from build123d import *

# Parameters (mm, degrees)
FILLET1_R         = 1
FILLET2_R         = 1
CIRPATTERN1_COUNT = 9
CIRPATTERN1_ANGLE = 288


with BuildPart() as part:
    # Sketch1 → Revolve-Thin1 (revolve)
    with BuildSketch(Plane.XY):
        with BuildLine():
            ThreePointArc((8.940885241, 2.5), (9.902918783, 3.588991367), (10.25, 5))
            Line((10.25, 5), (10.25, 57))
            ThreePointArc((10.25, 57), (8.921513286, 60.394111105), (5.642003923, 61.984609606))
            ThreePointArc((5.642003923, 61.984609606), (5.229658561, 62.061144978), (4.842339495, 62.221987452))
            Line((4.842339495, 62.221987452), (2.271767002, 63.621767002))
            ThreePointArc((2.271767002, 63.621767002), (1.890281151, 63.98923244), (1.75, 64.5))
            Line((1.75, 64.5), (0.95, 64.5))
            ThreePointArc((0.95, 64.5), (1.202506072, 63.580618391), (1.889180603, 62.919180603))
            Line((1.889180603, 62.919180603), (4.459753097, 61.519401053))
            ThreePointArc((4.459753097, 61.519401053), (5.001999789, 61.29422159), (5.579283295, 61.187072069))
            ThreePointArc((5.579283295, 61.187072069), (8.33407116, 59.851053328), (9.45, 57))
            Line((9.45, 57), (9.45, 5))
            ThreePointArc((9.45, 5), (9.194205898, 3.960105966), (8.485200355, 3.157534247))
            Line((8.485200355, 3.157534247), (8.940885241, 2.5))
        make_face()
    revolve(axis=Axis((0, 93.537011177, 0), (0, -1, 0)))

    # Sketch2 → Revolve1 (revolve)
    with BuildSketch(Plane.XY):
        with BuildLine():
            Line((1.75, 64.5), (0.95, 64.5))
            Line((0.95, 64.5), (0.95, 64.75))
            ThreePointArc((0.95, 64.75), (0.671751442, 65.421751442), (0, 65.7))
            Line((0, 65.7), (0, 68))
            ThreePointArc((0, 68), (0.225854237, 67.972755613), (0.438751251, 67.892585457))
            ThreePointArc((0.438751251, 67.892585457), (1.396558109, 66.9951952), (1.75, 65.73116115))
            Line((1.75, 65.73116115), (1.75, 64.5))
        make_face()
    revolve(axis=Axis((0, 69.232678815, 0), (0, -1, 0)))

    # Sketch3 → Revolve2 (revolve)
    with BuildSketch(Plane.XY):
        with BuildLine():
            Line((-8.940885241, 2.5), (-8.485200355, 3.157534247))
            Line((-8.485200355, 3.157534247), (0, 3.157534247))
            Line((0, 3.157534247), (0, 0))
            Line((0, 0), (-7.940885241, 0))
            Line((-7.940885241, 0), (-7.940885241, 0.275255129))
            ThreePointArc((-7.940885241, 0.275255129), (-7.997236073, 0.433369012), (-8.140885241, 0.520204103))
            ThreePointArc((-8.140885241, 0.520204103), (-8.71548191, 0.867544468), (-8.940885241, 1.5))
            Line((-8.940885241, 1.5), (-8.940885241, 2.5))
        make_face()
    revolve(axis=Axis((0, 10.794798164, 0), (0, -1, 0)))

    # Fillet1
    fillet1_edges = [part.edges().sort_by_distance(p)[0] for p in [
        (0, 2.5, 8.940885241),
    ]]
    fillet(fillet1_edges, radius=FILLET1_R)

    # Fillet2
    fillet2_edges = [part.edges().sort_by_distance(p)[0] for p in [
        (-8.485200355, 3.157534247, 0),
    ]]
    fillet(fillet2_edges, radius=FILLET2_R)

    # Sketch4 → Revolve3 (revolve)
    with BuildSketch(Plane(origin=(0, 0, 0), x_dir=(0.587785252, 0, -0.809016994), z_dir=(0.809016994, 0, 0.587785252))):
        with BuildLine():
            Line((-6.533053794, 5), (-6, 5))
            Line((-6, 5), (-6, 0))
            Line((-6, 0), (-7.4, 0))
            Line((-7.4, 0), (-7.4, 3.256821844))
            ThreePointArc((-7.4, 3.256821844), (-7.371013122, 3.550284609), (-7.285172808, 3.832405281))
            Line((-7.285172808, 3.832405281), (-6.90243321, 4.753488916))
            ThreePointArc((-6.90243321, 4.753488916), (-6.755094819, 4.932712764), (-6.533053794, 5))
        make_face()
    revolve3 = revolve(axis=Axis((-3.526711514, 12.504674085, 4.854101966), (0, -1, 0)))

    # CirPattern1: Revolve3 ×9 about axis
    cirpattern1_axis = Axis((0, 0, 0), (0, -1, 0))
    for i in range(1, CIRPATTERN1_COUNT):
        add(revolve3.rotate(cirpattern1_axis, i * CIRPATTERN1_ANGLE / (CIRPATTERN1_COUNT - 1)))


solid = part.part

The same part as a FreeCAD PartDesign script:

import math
import FreeCAD as App
import Part
import Sketcher
from FreeCAD import Vector
Q = App.Units.Quantity


def edges_at(feature, points):
    """Names of the edges that pass closest to the given points."""
    edges = feature.Shape.Edges
    near = lambda p: min(range(len(edges)), key=lambda i: edges[i].distToShape(Part.Vertex(*p))[0])
    return sorted({f"Edge{near(p) + 1}" for p in points})

doc = App.newDocument("Part")
body = doc.addObject("PartDesign::Body", "Body")

# Sketch on XY plane
sketch1 = body.newObject("Sketcher::SketchObject", "Sketch")
sketch1.AttachmentSupport = (doc.getObject("XY_Plane"), [""])
sketch1.MapMode = "FlatFace"
sketch1.addGeometry([
    Part.ArcOfCircle(Part.Circle(Vector(7.208333, 5, 0), Vector(0, 0, 1), 3.041667), math.radians(-55.277237), math.radians(0)),  # 0
    Part.LineSegment(Vector(10.25, 5, 0), Vector(10.25, 57, 0)),  # 1
    Part.ArcOfCircle(Part.Circle(Vector(5.25, 57, 0), Vector(0, 0, 1), 5), math.radians(0), math.radians(85.503351)),  # 2
    Part.ArcOfCircle(Part.Circle(Vector(5.798805, 63.978453, 0), Vector(0, 0, 1), 2), math.radians(-118.57006), math.radians(-94.496649)),  # 3
    Part.LineSegment(Vector(4.842339, 62.221987, 0), Vector(2.271767, 63.621767, 0)),  # 4
    Part.ArcOfCircle(Part.Circle(Vector(2.75, 64.5, 0), Vector(0, 0, 1), 1), math.radians(180), math.radians(241.42994)),  # 5
    Part.LineSegment(Vector(1.75, 64.5, 0), Vector(0.95, 64.5, 0)),  # 6
    Part.ArcOfCircle(Part.Circle(Vector(2.75, 64.5, 0), Vector(0, 0, 1), 1.8), math.radians(180), math.radians(241.42994)),  # 7
    Part.LineSegment(Vector(1.889181, 62.919181, 0), Vector(4.459753, 61.519401, 0)),  # 8
    Part.ArcOfCircle(Part.Circle(Vector(5.798805, 63.978453, 0), Vector(0, 0, 1), 2.8), math.radians(-118.57006), math.radians(-94.496649)),  # 9
    Part.ArcOfCircle(Part.Circle(Vector(5.25, 57, 0), Vector(0, 0, 1), 4.2), math.radians(0), math.radians(85.503351)),  # 10
    Part.LineSegment(Vector(9.45, 57, 0), Vector(9.45, 5, 0)),  # 11
    Part.ArcOfCircle(Part.Circle(Vector(7.208333, 5, 0), Vector(0, 0, 1), 2.241667), math.radians(-55.277237), math.radians(0)),  # 12
    Part.LineSegment(Vector(8.4852, 3.157534, 0), Vector(8.940885, 2.5, 0)),  # 13
], False)
sketch1.addConstraint([
    Sketcher.Constraint("Tangent", 0, 2, 1, 1),
    Sketcher.Constraint("Tangent", 1, 2, 2, 1),
    Sketcher.Constraint("Tangent", 2, 2, 3, 2),
    Sketcher.Constraint("Tangent", 3, 1, 4, 1),
    Sketcher.Constraint("Tangent", 4, 2, 5, 2),
    Sketcher.Constraint("Coincident", 5, 1, 6, 1),
    Sketcher.Constraint("Coincident", 6, 2, 7, 1),
    Sketcher.Constraint("Tangent", 7, 2, 8, 1),
    Sketcher.Constraint("Tangent", 8, 2, 9, 1),
    Sketcher.Constraint("Tangent", 9, 2, 10, 2),
    Sketcher.Constraint("Tangent", 10, 1, 11, 1),
    Sketcher.Constraint("Tangent", 11, 2, 12, 2),
    Sketcher.Constraint("Coincident", 12, 1, 13, 1),
    Sketcher.Constraint("Coincident", 13, 2, 0, 1),
    Sketcher.Constraint("Vertical", 1),
    Sketcher.Constraint("Horizontal", 6),
    Sketcher.Constraint("Vertical", 11),
    Sketcher.Constraint("Coincident", 7, 3, 5, 3),
    Sketcher.Constraint("Coincident", 9, 3, 3, 3),
    Sketcher.Constraint("Coincident", 10, 3, 2, 3),
    Sketcher.Constraint("Coincident", 12, 3, 0, 3),
    Sketcher.Constraint("Parallel", 4, 8),
    Sketcher.Constraint("Horizontal", 7, 3, 5, 1),
    Sketcher.Constraint("Radius", 2, Q("5 mm")),
    Sketcher.Constraint("Radius", 3, Q("2 mm")),
    Sketcher.Constraint("Radius", 5, Q("1 mm")),
    Sketcher.Constraint("Radius", 7, Q("1.8 mm")),
    Sketcher.Constraint("DistanceY", 1, 1, 1, 2, Q("52 mm")),
    Sketcher.Constraint("DistanceY", -1, 1, 0, 3, Q("5 mm")),
    Sketcher.Constraint("DistanceY", -1, 1, 5, 3, Q("64.5 mm")),
    Sketcher.Constraint("DistanceY", -1, 1, 13, 2, Q("2.5 mm")),
    Sketcher.Constraint("DistanceX", 5, 3, 2, 3, Q("2.5 mm")),
    Sketcher.Constraint("DistanceX", -1, 1, 2, 3, Q("5.25 mm")),
    Sketcher.Constraint("Radius", 0, Q("3.041667 mm")),
    Sketcher.Constraint("DistanceY", -1, 1, 8, 2, Q("61.519401 mm")),
    Sketcher.Constraint("DistanceX", -1, 1, 12, 1, Q("8.4852 mm")),
])
revolution = body.newObject("PartDesign::Revolution", "Revolution")
revolution.Profile = sketch1
revolution.ReferenceAxis = (sketch1, ["V_Axis"])
revolution.Angle = 360

# Sketch on XY plane
sketch2 = body.newObject("Sketcher::SketchObject", "Sketch001")
sketch2.AttachmentSupport = (doc.getObject("XY_Plane"), [""])
sketch2.MapMode = "FlatFace"
sketch2.addGeometry([
    Part.LineSegment(Vector(0.95, 64.5, 0), Vector(1.75, 64.5, 0)),  # 0
    Part.LineSegment(Vector(1.75, 64.5, 0), Vector(1.75, 65.731161, 0)),  # 1
    Part.ArcOfCircle(Part.Circle(Vector(-0.687039, 65.731161, 0), Vector(0, 0, 1), 2.437039), math.radians(0), math.radians(62.486991)),  # 2
    Part.ArcOfCircle(Part.Circle(Vector(0, 67.050219, 0), Vector(0, 0, 1), 0.949781), math.radians(62.48699), math.radians(90)),  # 3
    Part.LineSegment(Vector(0, 68, 0), Vector(0, 65.7, 0)),  # 4
    Part.ArcOfCircle(Part.Circle(Vector(0, 64.75, 0), Vector(0, 0, 1), 0.95), math.radians(0), math.radians(90)),  # 5
    Part.LineSegment(Vector(0.95, 64.75, 0), Vector(0.95, 64.5, 0)),  # 6
], False)
sketch2.addConstraint([
    Sketcher.Constraint("Coincident", 0, 2, 1, 1),
    Sketcher.Constraint("Tangent", 1, 2, 2, 1),
    Sketcher.Constraint("Tangent", 2, 2, 3, 1),
    Sketcher.Constraint("Coincident", 3, 2, 4, 1),
    Sketcher.Constraint("Coincident", 4, 2, 5, 2),
    Sketcher.Constraint("Tangent", 5, 1, 6, 1),
    Sketcher.Constraint("Coincident", 6, 2, 0, 1),
    Sketcher.Constraint("Horizontal", 0),
    Sketcher.Constraint("Vertical", 1),
    Sketcher.Constraint("Vertical", 4),
    Sketcher.Constraint("Vertical", 6),
    Sketcher.Constraint("PointOnObject", 3, 3, -2),
    Sketcher.Constraint("PointOnObject", 5, 3, -2),
    Sketcher.Constraint("PointOnObject", 3, 2, -2),
    Sketcher.Constraint("Radius", 5, Q("0.95 mm")),
    Sketcher.Constraint("DistanceX", 0, 1, 0, 2, Q("0.8 mm")),
    Sketcher.Constraint("DistanceY", 4, 2, 4, 1, Q("2.3 mm")),
    Sketcher.Constraint("DistanceY", -1, 1, 3, 2, Q("68 mm")),
    Sketcher.Constraint("DistanceY", 6, 2, 6, 1, Q("0.25 mm")),
    Sketcher.Constraint("Radius", 2, Q("2.437039 mm")),
    Sketcher.Constraint("Radius", 3, Q("0.949781 mm")),
])
revolution2 = body.newObject("PartDesign::Revolution", "Revolution001")
revolution2.Profile = sketch2
revolution2.ReferenceAxis = (sketch2, ["V_Axis"])
revolution2.Angle = 360

# Sketch on XY plane
sketch3 = body.newObject("Sketcher::SketchObject", "Sketch002")
sketch3.AttachmentSupport = (doc.getObject("XY_Plane"), [""])
sketch3.MapMode = "FlatFace"
sketch3.addGeometry([
    Part.LineSegment(Vector(-8.4852, 3.157534, 0), Vector(-8.940885, 2.5, 0)),  # 0
    Part.LineSegment(Vector(-8.940885, 2.5, 0), Vector(-8.940885, 1.5, 0)),  # 1
    Part.ArcOfCircle(Part.Circle(Vector(-7.940885, 1.5, 0), Vector(0, 0, 1), 1), math.radians(180), math.radians(258.463041)),  # 2
    Part.ArcOfCircle(Part.Circle(Vector(-8.190885, 0.275255, 0), Vector(0, 0, 1), 0.25), math.radians(0), math.radians(78.463041)),  # 3
    Part.LineSegment(Vector(-7.940885, 0.275255, 0), Vector(-7.940885, 0, 0)),  # 4
    Part.LineSegment(Vector(-7.940885, 0, 0), Vector(0, 0, 0)),  # 5
    Part.LineSegment(Vector(0, 0, 0), Vector(0, 3.157534, 0)),  # 6
    Part.LineSegment(Vector(0, 3.157534, 0), Vector(-8.4852, 3.157534, 0)),  # 7
], False)
sketch3.addConstraint([
    Sketcher.Constraint("Coincident", 0, 2, 1, 1),
    Sketcher.Constraint("Tangent", 1, 2, 2, 1),
    Sketcher.Constraint("Tangent", 2, 2, 3, 2),
    Sketcher.Constraint("Tangent", 3, 1, 4, 1),
    Sketcher.Constraint("Coincident", 4, 2, 5, 1),
    Sketcher.Constraint("Coincident", 5, 2, 6, 1),
    Sketcher.Constraint("Coincident", 6, 2, 7, 1),
    Sketcher.Constraint("Coincident", 7, 2, 0, 1),
    Sketcher.Constraint("Vertical", 1),
    Sketcher.Constraint("Vertical", 4),
    Sketcher.Constraint("Horizontal", 5),
    Sketcher.Constraint("Vertical", 6),
    Sketcher.Constraint("Horizontal", 7),
    Sketcher.Constraint("Coincident", 5, 2, -1, 1),
    Sketcher.Constraint("Vertical", 2, 3, 3, 1),
    Sketcher.Constraint("Radius", 2, Q("1 mm")),
    Sketcher.Constraint("DistanceY", 1, 2, 1, 1, Q("1 mm")),
    Sketcher.Constraint("Radius", 3, Q("0.25 mm")),
    Sketcher.Constraint("Distance", 0, Q("0.8 mm")),
    Sketcher.Constraint("DistanceY", -1, 1, 2, 3, Q("1.5 mm")),
    Sketcher.Constraint("DistanceX", 7, 2, 7, 1, Q("8.4852 mm")),
    Sketcher.Constraint("DistanceX", 5, 1, 5, 2, Q("7.940885 mm")),
])
revolution3 = body.newObject("PartDesign::Revolution", "Revolution002")
revolution3.Profile = sketch3
revolution3.ReferenceAxis = (sketch3, ["V_Axis"])
revolution3.Angle = 360
doc.recompute()

fillet = body.newObject("PartDesign::Fillet", "Fillet")
fillet.Base = (revolution3, edges_at(revolution3, [(0, 2.5, 8.941)]))
fillet.Radius = 1
doc.recompute()

fillet2 = body.newObject("PartDesign::Fillet", "Fillet001")
fillet2.Base = (fillet, edges_at(fillet, [(-8.485, 3.158, 0)]))
fillet2.Radius = 1

# Sketch on an angled plane
sketch4 = body.newObject("Sketcher::SketchObject", "Sketch003")
sketch4.Placement = App.Placement(Vector(0, 0, 0), App.Rotation(Vector(0.587785252, 0, -0.809016994), Vector(0, 0.999999999, 0), Vector(0.809016994, 0, 0.587785252), "ZXY"))
sketch4.addGeometry([
    Part.LineSegment(Vector(-6, 5, 0), Vector(-6.533054, 5, 0)),  # 0
    Part.ArcOfCircle(Part.Circle(Vector(-6.533054, 4.6, 0), Vector(0, 0, 1), 0.4), math.radians(90), math.radians(157.435559)),  # 1
    Part.LineSegment(Vector(-6.902433, 4.753489, 0), Vector(-7.285173, 3.832405, 0)),  # 2
    Part.ArcOfCircle(Part.Circle(Vector(-5.9, 3.256822, 0), Vector(0, 0, 1), 1.5), math.radians(157.435559), math.radians(180)),  # 3
    Part.LineSegment(Vector(-7.4, 3.256822, 0), Vector(-7.4, 0, 0)),  # 4
    Part.LineSegment(Vector(-7.4, 0, 0), Vector(-6, 0, 0)),  # 5
    Part.LineSegment(Vector(-6, 0, 0), Vector(-6, 5, 0)),  # 6
], False)
sketch4.addGeometry(Part.LineSegment(Vector(-6, 5, 0), Vector(-6, 0, 0)), True)  # axis
sketch4.addConstraint([
    Sketcher.Constraint("Tangent", 0, 2, 1, 1),
    Sketcher.Constraint("Tangent", 1, 2, 2, 1),
    Sketcher.Constraint("Tangent", 2, 2, 3, 1),
    Sketcher.Constraint("Tangent", 3, 2, 4, 1),
    Sketcher.Constraint("Coincident", 4, 2, 5, 1),
    Sketcher.Constraint("Coincident", 5, 2, 6, 1),
    Sketcher.Constraint("Coincident", 6, 2, 0, 1),
    Sketcher.Constraint("Horizontal", 0),
    Sketcher.Constraint("Vertical", 4),
    Sketcher.Constraint("Horizontal", 5),
    Sketcher.Constraint("Vertical", 6),
    Sketcher.Constraint("Vertical", 7),
    Sketcher.Constraint("Coincident", 7, 1, 6, 2),
    Sketcher.Constraint("PointOnObject", 4, 2, -1),
    Sketcher.Constraint("PointOnObject", 7, 2, -1),
    Sketcher.Constraint("Radius", 1, Q("0.4 mm")),
    Sketcher.Constraint("Radius", 3, Q("1.5 mm")),
    Sketcher.Constraint("DistanceY", 6, 1, 6, 2, Q("5 mm")),
    Sketcher.Constraint("DistanceX", 5, 1, 5, 2, Q("1.4 mm")),
    Sketcher.Constraint("DistanceX", 5, 2, -1, 1, Q("6 mm")),
    Sketcher.Constraint("DistanceY", 4, 2, 4, 1, Q("3.256822 mm")),
    Sketcher.Constraint("Distance", 2, Q("0.997439 mm")),
])
revolution4 = body.newObject("PartDesign::Revolution", "Revolution003")
revolution4.Profile = sketch4
revolution4.ReferenceAxis = (sketch4, ["Axis0"])
revolution4.Angle = 360
doc.recompute()

polarpattern = body.newObject("PartDesign::PolarPattern", "PolarPattern")
polarpattern.Originals = [revolution4]
polarpattern.Axis = (doc.getObject("Y_Axis"), [""])
polarpattern.Angle = 288
polarpattern.Occurrences = 9
polarpattern.Reversed = True
body.Tip = polarpattern

doc.recompute()
